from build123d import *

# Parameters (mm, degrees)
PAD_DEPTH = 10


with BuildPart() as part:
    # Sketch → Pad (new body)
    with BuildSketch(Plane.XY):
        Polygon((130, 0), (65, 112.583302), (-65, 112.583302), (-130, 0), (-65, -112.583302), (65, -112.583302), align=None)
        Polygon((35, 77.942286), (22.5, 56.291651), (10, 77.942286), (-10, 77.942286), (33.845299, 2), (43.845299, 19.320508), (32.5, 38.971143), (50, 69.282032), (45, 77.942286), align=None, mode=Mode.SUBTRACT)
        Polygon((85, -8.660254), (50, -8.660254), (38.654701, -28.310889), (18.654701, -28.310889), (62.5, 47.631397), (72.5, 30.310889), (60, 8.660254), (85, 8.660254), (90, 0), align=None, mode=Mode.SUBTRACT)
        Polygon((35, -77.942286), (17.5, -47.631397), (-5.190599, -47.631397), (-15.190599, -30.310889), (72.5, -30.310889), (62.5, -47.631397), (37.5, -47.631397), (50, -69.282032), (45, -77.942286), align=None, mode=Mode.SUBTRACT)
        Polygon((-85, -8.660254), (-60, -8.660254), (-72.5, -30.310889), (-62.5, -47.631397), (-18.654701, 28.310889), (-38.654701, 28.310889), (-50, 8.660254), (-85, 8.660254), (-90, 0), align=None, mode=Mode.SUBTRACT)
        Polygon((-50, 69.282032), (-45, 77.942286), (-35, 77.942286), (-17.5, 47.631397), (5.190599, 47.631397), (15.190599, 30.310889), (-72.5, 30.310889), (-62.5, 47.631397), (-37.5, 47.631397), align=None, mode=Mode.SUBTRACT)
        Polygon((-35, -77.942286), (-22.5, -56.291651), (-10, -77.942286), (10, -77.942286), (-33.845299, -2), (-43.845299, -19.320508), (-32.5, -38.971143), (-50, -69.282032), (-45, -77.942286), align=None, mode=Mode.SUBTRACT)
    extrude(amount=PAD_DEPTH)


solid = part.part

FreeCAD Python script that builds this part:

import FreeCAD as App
import Part
import Sketcher

V = App.Vector
Q = App.Units.Quantity

doc = App.newDocument("Part")
body = doc.addObject("PartDesign::Body", "Body")

sketch1 = body.newObject("Sketcher::SketchObject", "Sketch")
sketch1.AttachmentSupport = (doc.getObject("XY_Plane"), [""])
sketch1.MapMode = "FlatFace"
sketch1.addGeometry([
    Part.LineSegment(V(130, 0, 0), V(65, 113, 0)),
    Part.LineSegment(V(65, 113, 0), V(-65, 113, 0)),
    Part.LineSegment(V(-65, 113, 0), V(-130, 0, 0)),
    Part.LineSegment(V(-130, 0, 0), V(-65, -113, 0)),
    Part.LineSegment(V(-65, -113, 0), V(65, -113, 0)),
    Part.LineSegment(V(65, -113, 0), V(130, 0, 0)),
    Part.LineSegment(V(-22, -56, 0), V(-35, -78, 0)),
    Part.LineSegment(V(-35, -78, 0), V(-45, -78, 0)),
    Part.LineSegment(V(-45, -78, 0), V(-50, -69, 0)),
    Part.LineSegment(V(-50, -69, 0), V(-32, -39, 0)),
    Part.LineSegment(V(-32, -39, 0), V(-44, -19, 0)),
    Part.LineSegment(V(-44, -19, 0), V(-34, -2, 0)),
    Part.LineSegment(V(-34, -2, 0), V(10, -78, 0)),
    Part.LineSegment(V(10, -78, 0), V(-10, -78, 0)),
    Part.LineSegment(V(-10, -78, 0), V(-22, -56, 0)),
    Part.LineSegment(V(-60, -9, 0), V(-85, -9, 0)),
    Part.LineSegment(V(-85, -9, 0), V(-90, 0, 0)),
    Part.LineSegment(V(-90, 0, 0), V(-85, 9, 0)),
    Part.LineSegment(V(-85, 9, 0), V(-50, 9, 0)),
    Part.LineSegment(V(-50, 9, 0), V(-39, 28, 0)),
    Part.LineSegment(V(-39, 28, 0), V(-19, 28, 0)),
    Part.LineSegment(V(-19, 28, 0), V(-62, -48, 0)),
    Part.LineSegment(V(-62, -48, 0), V(-72, -30, 0)),
    Part.LineSegment(V(-72, -30, 0), V(-60, -9, 0)),
    Part.LineSegment(V(45, -78, 0), V(35, -78, 0)),
    Part.LineSegment(V(35, -78, 0), V(18, -48, 0)),
    Part.LineSegment(V(18, -48, 0), V(-5, -48, 0)),
    Part.LineSegment(V(-5, -48, 0), V(-15, -30, 0)),
    Part.LineSegment(V(-15, -30, 0), V(72, -30, 0)),
    Part.LineSegment(V(72, -30, 0), V(62, -48, 0)),
    Part.LineSegment(V(62, -48, 0), V(38, -48, 0)),
    Part.LineSegment(V(38, -48, 0), V(50, -69, 0)),
    Part.LineSegment(V(50, -69, 0), V(45, -78, 0)),
    Part.LineSegment(V(-38, 48, 0), V(-50, 69, 0)),
    Part.LineSegment(V(-50, 69, 0), V(-45, 78, 0)),
    Part.LineSegment(V(-45, 78, 0), V(-35, 78, 0)),
    Part.LineSegment(V(-35, 78, 0), V(-18, 48, 0)),
    Part.LineSegment(V(-18, 48, 0), V(5, 48, 0)),
    Part.LineSegment(V(5, 48, 0), V(15, 30, 0)),
    Part.LineSegment(V(15, 30, 0), V(-72, 30, 0)),
    Part.LineSegment(V(-72, 30, 0), V(-62, 48, 0)),
    Part.LineSegment(V(-62, 48, 0), V(-38, 48, 0)),
    Part.LineSegment(V(90, 0, 0), V(85, -9, 0)),
    Part.LineSegment(V(85, -9, 0), V(50, -9, 0)),
    Part.LineSegment(V(50, -9, 0), V(39, -28, 0)),
    Part.LineSegment(V(39, -28, 0), V(19, -28, 0)),
    Part.LineSegment(V(19, -28, 0), V(62, 48, 0)),
    Part.LineSegment(V(62, 48, 0), V(72, 30, 0)),
    Part.LineSegment(V(72, 30, 0), V(60, 9, 0)),
    Part.LineSegment(V(60, 9, 0), V(85, 9, 0)),
    Part.LineSegment(V(85, 9, 0), V(90, 0, 0)),
    Part.LineSegment(V(22, 56, 0), V(35, 78, 0)),
    Part.LineSegment(V(35, 78, 0), V(45, 78, 0)),
    Part.LineSegment(V(45, 78, 0), V(50, 69, 0)),
    Part.LineSegment(V(50, 69, 0), V(32, 39, 0)),
    Part.LineSegment(V(32, 39, 0), V(44, 19, 0)),
    Part.LineSegment(V(44, 19, 0), V(34, 2, 0)),
    Part.LineSegment(V(34, 2, 0), V(-10, 78, 0)),
    Part.LineSegment(V(-10, 78, 0), V(10, 78, 0)),
    Part.LineSegment(V(10, 78, 0), V(22, 56, 0)),
], False)
sketch1.addConstraint([
    Sketcher.Constraint("Coincident", 0, 2, 1, 1),
    Sketcher.Constraint("Coincident", 1, 2, 2, 1),
    Sketcher.Constraint("Coincident", 2, 2, 3, 1),
    Sketcher.Constraint("Coincident", 3, 2, 4, 1),
    Sketcher.Constraint("Coincident", 4, 2, 5, 1),
    Sketcher.Constraint("Coincident", 5, 2, 0, 1),
    Sketcher.Constraint("Coincident", 6, 2, 7, 1),
    Sketcher.Constraint("Coincident", 7, 2, 8, 1),
    Sketcher.Constraint("Coincident", 8, 2, 9, 1),
    Sketcher.Constraint("Coincident", 9, 2, 10, 1),
    Sketcher.Constraint("Coincident", 10, 2, 11, 1),
    Sketcher.Constraint("Coincident", 11, 2, 12, 1),
    Sketcher.Constraint("Coincident", 12, 2, 13, 1),
    Sketcher.Constraint("Coincident", 13, 2, 14, 1),
    Sketcher.Constraint("Coincident", 14, 2, 6, 1),
    Sketcher.Constraint("Coincident", 15, 2, 16, 1),
    Sketcher.Constraint("Coincident", 16, 2, 17, 1),
    Sketcher.Constraint("Coincident", 17, 2, 18, 1),
    Sketcher.Constraint("Coincident", 18, 2, 19, 1),
    Sketcher.Constraint("Coincident", 19, 2, 20, 1),
    Sketcher.Constraint("Coincident", 20, 2, 21, 1),
    Sketcher.Constraint("Coincident", 21, 2, 22, 1),
    Sketcher.Constraint("Coincident", 22, 2, 23, 1),
    Sketcher.Constraint("Coincident", 23, 2, 15, 1),
    Sketcher.Constraint("Coincident", 24, 2, 25, 1),
    Sketcher.Constraint("Coincident", 25, 2, 26, 1),
    Sketcher.Constraint("Coincident", 26, 2, 27, 1),
    Sketcher.Constraint("Coincident", 27, 2, 28, 1),
    Sketcher.Constraint("Coincident", 28, 2, 29, 1),
    Sketcher.Constraint("Coincident", 29, 2, 30, 1),
    Sketcher.Constraint("Coincident", 30, 2, 31, 1),
    Sketcher.Constraint("Coincident", 31, 2, 32, 1),
    Sketcher.Constraint("Coincident", 32, 2, 24, 1),
    Sketcher.Constraint("Coincident", 33, 2, 34, 1),
    Sketcher.Constraint("Coincident", 34, 2, 35, 1),
    Sketcher.Constraint("Coincident", 35, 2, 36, 1),
    Sketcher.Constraint("Coincident", 36, 2, 37, 1),
    Sketcher.Constraint("Coincident", 37, 2, 38, 1),
    Sketcher.Constraint("Coincident", 38, 2, 39, 1),
    Sketcher.Constraint("Coincident", 39, 2, 40, 1),
    Sketcher.Constraint("Coincident", 40, 2, 41, 1),
    Sketcher.Constraint("Coincident", 41, 2, 33, 1),
    Sketcher.Constraint("Coincident", 42, 2, 43, 1),
    Sketcher.Constraint("Coincident", 43, 2, 44, 1),
    Sketcher.Constraint("Coincident", 44, 2, 45, 1),
    Sketcher.Constraint("Coincident", 45, 2, 46, 1),
    Sketcher.Constraint("Coincident", 46, 2, 47, 1),
    Sketcher.Constraint("Coincident", 47, 2, 48, 1),
    Sketcher.Constraint("Coincident", 48, 2, 49, 1),
    Sketcher.Constraint("Coincident", 49, 2, 50, 1),
    Sketcher.Constraint("Coincident", 50, 2, 42, 1),
    Sketcher.Constraint("Coincident", 51, 2, 52, 1),
    Sketcher.Constraint("Coincident", 52, 2, 53, 1),
    Sketcher.Constraint("Coincident", 53, 2, 54, 1),
    Sketcher.Constraint("Coincident", 54, 2, 55, 1),
    Sketcher.Constraint("Coincident", 55, 2, 56, 1),
    Sketcher.Constraint("Coincident", 56, 2, 57, 1),
    Sketcher.Constraint("Coincident", 57, 2, 58, 1),
    Sketcher.Constraint("Coincident", 58, 2, 59, 1),
    Sketcher.Constraint("Coincident", 59, 2, 51, 1),
    Sketcher.Constraint("Horizontal", 1),
    Sketcher.Constraint("Horizontal", 4),
    Sketcher.Constraint("Horizontal", 7),
    Sketcher.Constraint("Horizontal", 13),
    Sketcher.Constraint("Horizontal", 15),
    Sketcher.Constraint("Horizontal", 18),
    Sketcher.Constraint("Horizontal", 20),
    Sketcher.Constraint("Horizontal", 24),
    Sketcher.Constraint("Horizontal", 26),
    Sketcher.Constraint("Horizontal", 28),
    Sketcher.Constraint("Horizontal", 30),
    Sketcher.Constraint("Horizontal", 35),
    Sketcher.Constraint("Horizontal", 37),
    Sketcher.Constraint("Horizontal", 39),
    Sketcher.Constraint("Horizontal", 41),
    Sketcher.Constraint("Horizontal", 43),
    Sketcher.Constraint("Horizontal", 45),
    Sketcher.Constraint("Horizontal", 49),
    Sketcher.Constraint("Horizontal", 52),
    Sketcher.Constraint("Horizontal", 58),
    Sketcher.Constraint("Symmetric", 0, 2, 3, 2, -1, 1),
    Sketcher.Constraint("Symmetric", 2, 2, 5, 2, -1, 1),
    Sketcher.Constraint("Symmetric", 31, 2, 33, 2, -1, 1),
    Sketcher.Constraint("Symmetric", 32, 2, 34, 2, -1, 1),
    Sketcher.Constraint("Symmetric", 25, 2, 36, 2, -1, 1),
    Sketcher.Constraint("Symmetric", 27, 2, 38, 2, -1, 1),
    Sketcher.Constraint("Symmetric", 29, 2, 40, 2, -1, 1),
    Sketcher.Constraint("Symmetric", 17, 2, 42, 2, -1, 1),
    Sketcher.Constraint("Symmetric", 19, 2, 44, 2, -1, 1),
    Sketcher.Constraint("Symmetric", 21, 2, 46, 2, -1, 1),
    Sketcher.Constraint("Symmetric", 22, 2, 47, 2, -1, 1),
    Sketcher.Constraint("Symmetric", 23, 2, 48, 2, -1, 1),
    Sketcher.Constraint("Symmetric", 16, 2, 50, 2, -1, 1),
    Sketcher.Constraint("Symmetric", 6, 2, 51, 2, -1, 1),
    Sketcher.Constraint("Symmetric", 8, 2, 53, 2, -1, 1),
    Sketcher.Constraint("Symmetric", 9, 2, 54, 2, -1, 1),
    Sketcher.Constraint("Symmetric", 10, 2, 55, 2, -1, 1),
    Sketcher.Constraint("Symmetric", 11, 2, 56, 2, -1, 1),
    Sketcher.Constraint("Symmetric", 12, 2, 57, 2, -1, 1),
    Sketcher.Constraint("Symmetric", 14, 2, 59, 2, -1, 1),
    Sketcher.Constraint("Symmetric", 6, 2, 24, 2, -2),
    Sketcher.Constraint("Symmetric", 22, 2, 28, 2, -2),
    Sketcher.Constraint("Symmetric", 21, 2, 29, 2, -2),
    Sketcher.Constraint("Symmetric", 8, 2, 31, 2, -2),
    Sketcher.Constraint("Symmetric", 15, 2, 42, 2, -2),
    Sketcher.Constraint("PointOnObject", 2, 2, -1),
    Sketcher.Constraint("PointOnObject", 16, 2, -1),
    Sketcher.Constraint("Parallel", 2, 5),
    Sketcher.Constraint("Parallel", 5, 6),
    Sketcher.Constraint("Parallel", 3, 8),
    Sketcher.Constraint("Parallel", 6, 9),
    Sketcher.Constraint("Parallel", 8, 10),
    Sketcher.Constraint("Parallel", 9, 11),
    Sketcher.Constraint("Parallel", 10, 12),
    Sketcher.Constraint("Parallel", 12, 14),
    Sketcher.Constraint("Parallel", 14, 16),
    Sketcher.Constraint("Parallel", 11, 17),
    Sketcher.Constraint("Parallel", 17, 19),
    Sketcher.Constraint("Parallel", 19, 21),
    Sketcher.Constraint("Parallel", 16, 22),
    Sketcher.Constraint("Parallel", 21, 23),
    Sketcher.Constraint("Parallel", 22, 25),
    Sketcher.Constraint("Parallel", 25, 27),
    Sketcher.Constraint("Parallel", 27, 31),
    Sketcher.Constraint("Parallel", 29, 32),
    Sketcher.Constraint("Parallel", 31, 33),
    Sketcher.Constraint("Parallel", 33, 36),
    Sketcher.Constraint("Parallel", 36, 38),
    Sketcher.Constraint("Parallel", 34, 40),
    Sketcher.Constraint("Parallel", 42, 44),
    Sketcher.Constraint("Parallel", 44, 46),
    Sketcher.Constraint("Parallel", 47, 50),
    Sketcher.Constraint("Parallel", 50, 53),
    Sketcher.Constraint("Parallel", 57, 59),
    Sketcher.Constraint("Horizontal", 7, 2, 12, 2),
    Sketcher.Constraint("Horizontal", 21, 2, 25, 2),
    Sketcher.Constraint("Vertical", 8, 2, 18, 2),
    Sketcher.Constraint("Vertical", 13, 2, 57, 2),
    Sketcher.Constraint("Equal", 13, 20),
    Sketcher.Constraint("Equal", 15, 30),
    Sketcher.Constraint("Equal", 8, 16),
    Sketcher.Constraint("Equal", 10, 19),
    Sketcher.Constraint("Equal", 12, 21),
    Sketcher.Constraint("Equal", 11, 22),
    Sketcher.Constraint("Equal", 14, 23),
    Sketcher.Constraint("Equal", 9, 25),
    Sketcher.Constraint("DistanceX", 1, 2, 1, 1, Q("130 mm")),
    Sketcher.Constraint("DistanceX", 7, 2, 7, 1, Q("10 mm")),
    Sketcher.Constraint("DistanceX", 13, 2, 13, 1, Q("20 mm")),
    Sketcher.Constraint("DistanceX", 15, 2, 15, 1, Q("25 mm")),
    Sketcher.Constraint("Angle", 0, Q("120 deg")),
    Sketcher.Constraint("Distance", 0, Q("130 mm")),
    Sketcher.Constraint("Distance", 6, Q("25 mm")),
    Sketcher.Constraint("DistanceY", 11, 2, -1, 1, Q("2 mm")),
    Sketcher.Constraint("DistanceX", 26, 2, 26, 1, Q("22.690599 mm")),
])
pad1 = body.newObject("PartDesign::Pad", "Pad")
pad1.Profile = sketch1
pad1.Length = 10

doc.recompute()
